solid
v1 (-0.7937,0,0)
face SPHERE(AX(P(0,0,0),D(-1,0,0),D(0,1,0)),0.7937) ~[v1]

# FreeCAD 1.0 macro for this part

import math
import FreeCAD as App
import Part
import Sketcher

V = App.Vector
Q = App.Units.Quantity

doc = App.newDocument("Part")
body = doc.addObject("PartDesign::Body", "Body")

# Sketch on XY plane
sketch1 = doc.addObject("Sketcher::SketchObject", "Sketch")
body.addObject(sketch1)
sketch1.AttachmentSupport = (doc.XY_Plane, [""])
sketch1.MapMode = "FlatFace"
sketch1.addGeometry([
    Part.LineSegment(V(-0.8, 0, 0), V(0.8, 0, 0)),
    Part.ArcOfCircle(Part.Circle(V(0, 0, 0), V(0, 0, 1), 0.8), math.radians(0), math.radians(180)),
], False)
sketch1.addConstraint([
    Sketcher.Constraint("Coincident", 0, 1, 1, 2),
    Sketcher.Constraint("Coincident", 1, 1, 0, 2),
    Sketcher.Constraint("Horizontal", 0),
    Sketcher.Constraint("Coincident", 1, 3, -1, 1),
    Sketcher.Constraint("PointOnObject", 0, 1, -1),
    Sketcher.Constraint("Radius", 1, Q("0.031248 in")),
])
revolution = doc.addObject("PartDesign::Revolution", "Revolution")
body.addObject(revolution)
revolution.Profile = sketch1
revolution.ReferenceAxis = (sketch1, ["H_Axis"])
revolution.Angle = 360

doc.recompute()
